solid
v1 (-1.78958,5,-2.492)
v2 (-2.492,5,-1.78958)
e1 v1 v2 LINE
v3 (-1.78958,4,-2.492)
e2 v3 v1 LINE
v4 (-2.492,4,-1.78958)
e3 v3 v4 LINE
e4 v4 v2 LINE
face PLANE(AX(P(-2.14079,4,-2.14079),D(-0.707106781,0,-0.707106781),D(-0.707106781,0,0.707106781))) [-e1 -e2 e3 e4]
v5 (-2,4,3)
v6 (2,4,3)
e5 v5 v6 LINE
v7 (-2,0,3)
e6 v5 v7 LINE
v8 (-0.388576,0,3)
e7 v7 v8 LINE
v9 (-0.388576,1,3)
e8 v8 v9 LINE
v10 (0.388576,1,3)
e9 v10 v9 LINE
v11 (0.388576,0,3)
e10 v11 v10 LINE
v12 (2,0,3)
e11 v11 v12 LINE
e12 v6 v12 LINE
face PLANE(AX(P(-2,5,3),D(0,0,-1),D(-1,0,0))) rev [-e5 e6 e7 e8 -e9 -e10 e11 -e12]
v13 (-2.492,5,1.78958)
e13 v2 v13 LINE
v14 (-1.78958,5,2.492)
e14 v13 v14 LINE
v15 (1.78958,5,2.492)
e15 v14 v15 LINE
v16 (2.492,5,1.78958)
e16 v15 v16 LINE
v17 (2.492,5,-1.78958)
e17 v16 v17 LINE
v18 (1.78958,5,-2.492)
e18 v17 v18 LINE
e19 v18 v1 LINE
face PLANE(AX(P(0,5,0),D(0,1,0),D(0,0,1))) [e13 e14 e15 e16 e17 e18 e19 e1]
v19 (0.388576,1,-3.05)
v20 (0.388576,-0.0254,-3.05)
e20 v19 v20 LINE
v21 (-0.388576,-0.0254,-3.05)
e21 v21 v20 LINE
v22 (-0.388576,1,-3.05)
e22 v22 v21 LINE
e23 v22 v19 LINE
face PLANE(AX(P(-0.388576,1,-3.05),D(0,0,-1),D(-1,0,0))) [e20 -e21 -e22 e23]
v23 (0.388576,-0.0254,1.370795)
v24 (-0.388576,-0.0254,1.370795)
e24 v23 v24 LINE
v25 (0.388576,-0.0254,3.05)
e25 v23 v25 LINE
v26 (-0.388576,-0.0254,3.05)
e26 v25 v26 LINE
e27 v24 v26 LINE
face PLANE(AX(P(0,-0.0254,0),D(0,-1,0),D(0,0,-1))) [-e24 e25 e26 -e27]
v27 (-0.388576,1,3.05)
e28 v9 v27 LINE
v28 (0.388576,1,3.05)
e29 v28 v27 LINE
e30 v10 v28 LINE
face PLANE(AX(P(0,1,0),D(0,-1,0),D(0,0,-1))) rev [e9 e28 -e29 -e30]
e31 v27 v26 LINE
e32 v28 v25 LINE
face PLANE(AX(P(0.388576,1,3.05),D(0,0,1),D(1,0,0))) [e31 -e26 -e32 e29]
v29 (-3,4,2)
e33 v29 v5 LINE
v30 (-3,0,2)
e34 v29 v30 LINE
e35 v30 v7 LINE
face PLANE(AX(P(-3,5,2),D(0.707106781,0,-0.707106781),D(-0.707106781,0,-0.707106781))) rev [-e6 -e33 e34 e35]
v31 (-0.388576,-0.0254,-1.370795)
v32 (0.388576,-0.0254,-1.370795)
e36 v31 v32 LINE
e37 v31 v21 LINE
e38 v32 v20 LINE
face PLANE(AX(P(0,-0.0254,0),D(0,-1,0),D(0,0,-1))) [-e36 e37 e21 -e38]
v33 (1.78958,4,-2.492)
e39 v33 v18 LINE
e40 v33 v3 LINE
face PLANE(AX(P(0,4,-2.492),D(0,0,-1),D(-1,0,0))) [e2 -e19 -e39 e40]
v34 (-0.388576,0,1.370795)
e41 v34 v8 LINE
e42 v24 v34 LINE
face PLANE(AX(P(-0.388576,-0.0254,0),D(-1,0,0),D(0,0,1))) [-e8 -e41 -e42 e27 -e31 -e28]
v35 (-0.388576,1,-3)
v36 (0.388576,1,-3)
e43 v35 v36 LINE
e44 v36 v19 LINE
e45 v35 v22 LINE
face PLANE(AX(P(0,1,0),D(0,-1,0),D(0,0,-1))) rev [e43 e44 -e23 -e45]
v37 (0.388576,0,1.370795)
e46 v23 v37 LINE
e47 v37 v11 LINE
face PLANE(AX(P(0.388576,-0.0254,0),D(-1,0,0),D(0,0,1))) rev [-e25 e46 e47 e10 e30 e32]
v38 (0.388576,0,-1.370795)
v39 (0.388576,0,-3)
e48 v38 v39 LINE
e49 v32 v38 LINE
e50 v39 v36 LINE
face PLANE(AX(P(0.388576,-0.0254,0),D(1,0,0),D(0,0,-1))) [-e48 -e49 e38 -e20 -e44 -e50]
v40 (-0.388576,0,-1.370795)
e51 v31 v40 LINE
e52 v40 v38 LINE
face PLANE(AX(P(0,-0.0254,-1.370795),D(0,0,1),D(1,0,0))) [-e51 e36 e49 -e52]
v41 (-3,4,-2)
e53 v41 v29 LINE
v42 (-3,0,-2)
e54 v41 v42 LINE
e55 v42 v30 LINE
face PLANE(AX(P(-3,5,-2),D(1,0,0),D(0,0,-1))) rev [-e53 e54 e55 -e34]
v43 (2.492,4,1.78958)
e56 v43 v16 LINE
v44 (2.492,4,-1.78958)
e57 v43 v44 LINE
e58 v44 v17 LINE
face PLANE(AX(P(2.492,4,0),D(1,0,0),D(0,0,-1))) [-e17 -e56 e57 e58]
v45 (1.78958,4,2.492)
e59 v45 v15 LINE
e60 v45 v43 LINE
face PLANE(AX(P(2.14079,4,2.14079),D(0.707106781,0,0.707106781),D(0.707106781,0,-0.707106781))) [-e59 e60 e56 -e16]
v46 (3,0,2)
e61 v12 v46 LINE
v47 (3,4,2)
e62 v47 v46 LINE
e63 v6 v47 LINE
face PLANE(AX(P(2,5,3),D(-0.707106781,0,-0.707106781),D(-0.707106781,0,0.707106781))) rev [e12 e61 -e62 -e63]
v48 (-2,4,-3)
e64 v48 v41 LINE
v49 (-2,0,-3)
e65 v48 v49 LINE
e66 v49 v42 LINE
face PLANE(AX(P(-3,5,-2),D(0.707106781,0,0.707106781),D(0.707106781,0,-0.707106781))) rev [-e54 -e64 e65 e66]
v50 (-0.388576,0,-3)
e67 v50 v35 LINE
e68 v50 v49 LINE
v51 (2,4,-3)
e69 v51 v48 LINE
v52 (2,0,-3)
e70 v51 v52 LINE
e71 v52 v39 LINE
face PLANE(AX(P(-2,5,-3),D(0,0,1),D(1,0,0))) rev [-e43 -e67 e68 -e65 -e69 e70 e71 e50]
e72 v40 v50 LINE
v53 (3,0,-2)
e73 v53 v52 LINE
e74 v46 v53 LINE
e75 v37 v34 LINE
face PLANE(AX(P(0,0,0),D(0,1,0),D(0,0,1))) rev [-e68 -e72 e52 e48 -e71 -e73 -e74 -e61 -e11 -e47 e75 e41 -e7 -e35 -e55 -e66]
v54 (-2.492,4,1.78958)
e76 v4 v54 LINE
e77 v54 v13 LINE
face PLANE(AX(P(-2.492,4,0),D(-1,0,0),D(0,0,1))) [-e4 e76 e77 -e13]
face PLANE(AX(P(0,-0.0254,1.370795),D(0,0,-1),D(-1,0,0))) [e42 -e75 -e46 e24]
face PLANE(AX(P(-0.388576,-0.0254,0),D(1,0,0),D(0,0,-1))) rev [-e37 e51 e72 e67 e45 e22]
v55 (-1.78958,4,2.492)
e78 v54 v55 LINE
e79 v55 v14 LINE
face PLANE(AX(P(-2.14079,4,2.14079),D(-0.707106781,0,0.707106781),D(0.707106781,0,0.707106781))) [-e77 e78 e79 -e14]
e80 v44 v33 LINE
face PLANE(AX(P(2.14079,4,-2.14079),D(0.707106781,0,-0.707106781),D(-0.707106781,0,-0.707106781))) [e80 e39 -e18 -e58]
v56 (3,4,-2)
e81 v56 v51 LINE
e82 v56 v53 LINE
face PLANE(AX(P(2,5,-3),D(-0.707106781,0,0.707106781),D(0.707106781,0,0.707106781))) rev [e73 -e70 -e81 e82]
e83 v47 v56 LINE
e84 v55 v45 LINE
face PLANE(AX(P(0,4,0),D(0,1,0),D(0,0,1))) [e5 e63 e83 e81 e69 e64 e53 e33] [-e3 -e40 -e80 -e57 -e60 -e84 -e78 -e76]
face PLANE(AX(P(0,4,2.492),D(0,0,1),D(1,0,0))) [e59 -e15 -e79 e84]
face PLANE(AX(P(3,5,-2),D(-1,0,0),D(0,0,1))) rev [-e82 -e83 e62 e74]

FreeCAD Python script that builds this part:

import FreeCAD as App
import Part
import Sketcher

V = App.Vector

doc = App.newDocument("Part")
body = doc.addObject("PartDesign::Body", "Body")

# Sketch on XZ plane
sketch1 = doc.addObject("Sketcher::SketchObject", "Sketch")
body.addObject(sketch1)
sketch1.AttachmentSupport = (doc.XZ_Plane, [""])
sketch1.MapMode = "FlatFace"
sketch1.addGeometry(Part.LineSegment(V(-2, -3, 0), V(-3, -2, 0)), False)
sketch1.addGeometry(Part.LineSegment(V(-3, -2, 0), V(-3, 2, 0)), False)
sketch1.addGeometry(Part.LineSegment(V(-3, 2, 0), V(-2, 3, 0)), False)
sketch1.addGeometry(Part.LineSegment(V(-2, 3, 0), V(2, 3, 0)), False)
sketch1.addGeometry(Part.LineSegment(V(2, 3, 0), V(3, 2, 0)), False)
sketch1.addGeometry(Part.LineSegment(V(3, 2, 0), V(3, -2, 0)), False)
sketch1.addGeometry(Part.LineSegment(V(3, -2, 0), V(2, -3, 0)), False)
sketch1.addGeometry(Part.LineSegment(V(2, -3, 0), V(-2, -3, 0)), False)
sketch1.addConstraint(Sketcher.Constraint("Coincident", 0, 2, 1, 1))
sketch1.addConstraint(Sketcher.Constraint("Coincident", 1, 2, 2, 1))
sketch1.addConstraint(Sketcher.Constraint("Coincident", 2, 2, 3, 1))
sketch1.addConstraint(Sketcher.Constraint("Coincident", 3, 2, 4, 1))
sketch1.addConstraint(Sketcher.Constraint("Coincident", 4, 2, 5, 1))
sketch1.addConstraint(Sketcher.Constraint("Coincident", 5, 2, 6, 1))
sketch1.addConstraint(Sketcher.Constraint("Coincident", 6, 2, 7, 1))
sketch1.addConstraint(Sketcher.Constraint("Coincident", 7, 2, 0, 1))
sketch1.addConstraint(Sketcher.Constraint("Vertical", 1))
sketch1.addConstraint(Sketcher.Constraint("Horizontal", 3))
sketch1.addConstraint(Sketcher.Constraint("Vertical", 5))
sketch1.addConstraint(Sketcher.Constraint("Horizontal", 7))
sketch1.addConstraint(Sketcher.Constraint("Symmetric", 0, 2, 4, 2, -1, 1))
sketch1.addConstraint(Sketcher.Constraint("Symmetric", 2, 2, 6, 2, -1, 1))
sketch1.addConstraint(Sketcher.Constraint("Perpendicular", 0, 2))
sketch1.addConstraint(Sketcher.Constraint("Perpendicular", 2, 4))
sketch1.addConstraint(Sketcher.Constraint("Perpendicular", 4, 6))
sketch1.addConstraint(Sketcher.Constraint("Horizontal", 1, 2, 4, 2))
sketch1.addConstraint(Sketcher.Constraint("Vertical", 3, 2, 6, 2))
sketch1.addConstraint(Sketcher.Constraint("Equal", 7, 1))
sketch1.addConstraint(Sketcher.Constraint("DistanceX", 3, 1, 3, 2, 4.0))
sketch1.addConstraint(Sketcher.Constraint("DistanceX", 0, 2, -1, 1, 3.0))
pad1 = doc.addObject("PartDesign::Pad", "Pad")
body.addObject(pad1)
pad1.Profile = sketch1
pad1.Length = 5
pad1.Reversed = True

# Sketch on XZ plane
sketch2 = doc.addObject("Sketcher::SketchObject", "Sketch001")
body.addObject(sketch2)
sketch2.AttachmentSupport = (doc.XZ_Plane, [""])
sketch2.MapMode = "FlatFace"
sketch2.AttachmentOffset = App.Placement(V(0, 0, -5), App.Rotation())
sketch2.addGeometry(Part.LineSegment(V(3, 2, 0), V(3, -2, 0)), False)
sketch2.addGeometry(Part.LineSegment(V(3, -2, 0), V(2, -3, 0)), False)
sketch2.addGeometry(Part.LineSegment(V(2, -3, 0), V(-2, -3, 0)), False)
sketch2.addGeometry(Part.LineSegment(V(-2, -3, 0), V(-3, -2, 0)), False)
sketch2.addGeometry(Part.LineSegment(V(-3, -2, 0), V(-3, 2, 0)), False)
sketch2.addGeometry(Part.LineSegment(V(-3, 2, 0), V(-2, 3, 0)), False)
sketch2.addGeometry(Part.LineSegment(V(-2, 3, 0), V(2, 3, 0)), False)
sketch2.addGeometry(Part.LineSegment(V(2, 3, 0), V(3, 2, 0)), False)
sketch2.addGeometry(Part.LineSegment(V(2.492, -1.78958, 0), V(2.492, 1.78958, 0)), False)
sketch2.addGeometry(Part.LineSegment(V(2.492, 1.78958, 0), V(1.78958, 2.492, 0)), False)
sketch2.addGeometry(Part.LineSegment(V(1.78958, 2.492, 0), V(-1.78958, 2.492, 0)), False)
sketch2.addGeometry(Part.LineSegment(V(-1.78958, 2.492, 0), V(-2.492, 1.78958, 0)), False)
sketch2.addGeometry(Part.LineSegment(V(-2.492, 1.78958, 0), V(-2.492, -1.78958, 0)), False)
sketch2.addGeometry(Part.LineSegment(V(-2.492, -1.78958, 0), V(-1.78958, -2.492, 0)), False)
sketch2.addGeometry(Part.LineSegment(V(-1.78958, -2.492, 0), V(1.78958, -2.492, 0)), False)
sketch2.addGeometry(Part.LineSegment(V(1.78958, -2.492, 0), V(2.492, -1.78958, 0)), False)
sketch2.addConstraint(Sketcher.Constraint("Coincident", 0, 2, 1, 1))
sketch2.addConstraint(Sketcher.Constraint("Coincident", 1, 2, 2, 1))
sketch2.addConstraint(Sketcher.Constraint("Coincident", 2, 2, 3, 1))
sketch2.addConstraint(Sketcher.Constraint("Coincident", 3, 2, 4, 1))
sketch2.addConstraint(Sketcher.Constraint("Coincident", 4, 2, 5, 1))
sketch2.addConstraint(Sketcher.Constraint("Coincident", 5, 2, 6, 1))
sketch2.addConstraint(Sketcher.Constraint("Coincident", 6, 2, 7, 1))
sketch2.addConstraint(Sketcher.Constraint("Coincident", 7, 2, 0, 1))
sketch2.addConstraint(Sketcher.Constraint("Coincident", 8, 2, 9, 1))
sketch2.addConstraint(Sketcher.Constraint("Coincident", 9, 2, 10, 1))
sketch2.addConstraint(Sketcher.Constraint("Coincident", 10, 2, 11, 1))
sketch2.addConstraint(Sketcher.Constraint("Coincident", 11, 2, 12, 1))
sketch2.addConstraint(Sketcher.Constraint("Coincident", 12, 2, 13, 1))
sketch2.addConstraint(Sketcher.Constraint("Coincident", 13, 2, 14, 1))
sketch2.addConstraint(Sketcher.Constraint("Coincident", 14, 2, 15, 1))
sketch2.addConstraint(Sketcher.Constraint("Coincident", 15, 2, 8, 1))
sketch2.addConstraint(Sketcher.Constraint("Vertical", 0))
sketch2.addConstraint(Sketcher.Constraint("Horizontal", 2))
sketch2.addConstraint(Sketcher.Constraint("Vertical", 4))
sketch2.addConstraint(Sketcher.Constraint("Horizontal", 6))
sketch2.addConstraint(Sketcher.Constraint("Vertical", 8))
sketch2.addConstraint(Sketcher.Constraint("Horizontal", 10))
sketch2.addConstraint(Sketcher.Constraint("Vertical", 12))
sketch2.addConstraint(Sketcher.Constraint("Horizontal", 14))
sketch2.addConstraint(Sketcher.Constraint("Symmetric", 0, 2, 4, 2, -1, 1))
sketch2.addConstraint(Sketcher.Constraint("Symmetric", 1, 2, 5, 2, -1, 1))
sketch2.addConstraint(Sketcher.Constraint("Symmetric", 8, 2, 12, 2, -1, 1))
sketch2.addConstraint(Sketcher.Constraint("Symmetric", 9, 2, 13, 2, -1, 1))
sketch2.addConstraint(Sketcher.Constraint("Perpendicular", 1, 3))
sketch2.addConstraint(Sketcher.Constraint("Perpendicular", 5, 7))
sketch2.addConstraint(Sketcher.Constraint("Parallel", 7, 9))
sketch2.addConstraint(Sketcher.Constraint("Perpendicular", 9, 11))
sketch2.addConstraint(Sketcher.Constraint("Perpendicular", 13, 15))
sketch2.addConstraint(Sketcher.Constraint("Horizontal", 0, 2, 3, 2))
sketch2.addConstraint(Sketcher.Constraint("Horizontal", 4, 2, 7, 2))
sketch2.addConstraint(Sketcher.Constraint("Horizontal", 8, 2, 11, 2))
sketch2.addConstraint(Sketcher.Constraint("Horizontal", 12, 2, 15, 2))
sketch2.addConstraint(Sketcher.Constraint("Vertical", 2, 2, 5, 2))
sketch2.addConstraint(Sketcher.Constraint("Equal", 6, 0))
sketch2.addConstraint(Sketcher.Constraint("Equal", 14, 8))
sketch2.addConstraint(Sketcher.Constraint("DistanceX", 2, 2, 2, 1, 4.0))
sketch2.addConstraint(Sketcher.Constraint("DistanceX", -1, 1, 0, 2, 3.0))
sketch2.addConstraint(Sketcher.Constraint("DistanceX", -1, 1, 8, 2, 2.492))
sketch2.addConstraint(Sketcher.Constraint("DistanceX", 10, 2, 10, 1, 3.579159))
pocket1 = doc.addObject("PartDesign::Pocket", "Pocket")
body.addObject(pocket1)
pocket1.Profile = sketch2
pocket1.Length = 1
pocket1.Reversed = True

# Sketch on XZ plane
sketch3 = doc.addObject("Sketcher::SketchObject", "Sketch002")
body.addObject(sketch3)
sketch3.AttachmentSupport = (doc.XZ_Plane, [""])
sketch3.MapMode = "FlatFace"
sketch3.addGeometry(Part.LineSegment(V(-0.388576, 3.05, 0), V(-0.388576, 1.370795, 0)), False)
sketch3.addGeometry(Part.LineSegment(V(-0.388576, 1.370795, 0), V(0.388576, 1.370795, 0)), False)
sketch3.addGeometry(Part.LineSegment(V(0.388576, 1.370795, 0), V(0.388576, 3.05, 0)), False)
sketch3.addGeometry(Part.LineSegment(V(0.388576, 3.05, 0), V(-0.388576, 3.05, 0)), False)
sketch3.addGeometry(Part.LineSegment(V(-0.388576, -1.370795, 0), V(-0.388576, -3.05, 0)), False)
sketch3.addGeometry(Part.LineSegment(V(-0.388576, -3.05, 0), V(0.388576, -3.05, 0)), False)
sketch3.addGeometry(Part.LineSegment(V(0.388576, -3.05, 0), V(0.388576, -1.370795, 0)), False)
sketch3.addGeometry(Part.LineSegment(V(0.388576, -1.370795, 0), V(-0.388576, -1.370795, 0)), False)
sketch3.addConstraint(Sketcher.Constraint("Coincident", 0, 2, 1, 1))
sketch3.addConstraint(Sketcher.Constraint("Coincident", 1, 2, 2, 1))
sketch3.addConstraint(Sketcher.Constraint("Coincident", 2, 2, 3, 1))
sketch3.addConstraint(Sketcher.Constraint("Coincident", 3, 2, 0, 1))
sketch3.addConstraint(Sketcher.Constraint("Coincident", 4, 2, 5, 1))
sketch3.addConstraint(Sketcher.Constraint("Coincident", 5, 2, 6, 1))
sketch3.addConstraint(Sketcher.Constraint("Coincident", 6, 2, 7, 1))
sketch3.addConstraint(Sketcher.Constraint("Coincident", 7, 2, 4, 1))
sketch3.addConstraint(Sketcher.Constraint("Vertical", 0))
sketch3.addConstraint(Sketcher.Constraint("Horizontal", 1))
sketch3.addConstraint(Sketcher.Constraint("Vertical", 2))
sketch3.addConstraint(Sketcher.Constraint("Horizontal", 3))
sketch3.addConstraint(Sketcher.Constraint("Vertical", 4))
sketch3.addConstraint(Sketcher.Constraint("Horizontal", 5))
sketch3.addConstraint(Sketcher.Constraint("Vertical", 6))
sketch3.addConstraint(Sketcher.Constraint("Horizontal", 7))
sketch3.addConstraint(Sketcher.Constraint("Symmetric", 2, 2, 4, 2, -1, 1))
sketch3.addConstraint(Sketcher.Constraint("Symmetric", 0, 2, 6, 2, -1, 1))
sketch3.addConstraint(Sketcher.Constraint("Vertical", 3, 2, 4, 2))
sketch3.addConstraint(Sketcher.Constraint("DistanceY", 4, 2, 3, 2, 6.1))
sketch3.addConstraint(Sketcher.Constraint("DistanceX", 1, 1, 1, 2, 0.777153))
sketch3.addConstraint(Sketcher.Constraint("DistanceY", 0, 2, 0, 1, 1.679205))
pad2 = doc.addObject("PartDesign::Pad", "Pad001")
body.addObject(pad2)
pad2.Profile = sketch3
pad2.Type = "TwoLengths"
pad2.Length = 0.0254
pad2.Length2 = 1

doc.recompute()
